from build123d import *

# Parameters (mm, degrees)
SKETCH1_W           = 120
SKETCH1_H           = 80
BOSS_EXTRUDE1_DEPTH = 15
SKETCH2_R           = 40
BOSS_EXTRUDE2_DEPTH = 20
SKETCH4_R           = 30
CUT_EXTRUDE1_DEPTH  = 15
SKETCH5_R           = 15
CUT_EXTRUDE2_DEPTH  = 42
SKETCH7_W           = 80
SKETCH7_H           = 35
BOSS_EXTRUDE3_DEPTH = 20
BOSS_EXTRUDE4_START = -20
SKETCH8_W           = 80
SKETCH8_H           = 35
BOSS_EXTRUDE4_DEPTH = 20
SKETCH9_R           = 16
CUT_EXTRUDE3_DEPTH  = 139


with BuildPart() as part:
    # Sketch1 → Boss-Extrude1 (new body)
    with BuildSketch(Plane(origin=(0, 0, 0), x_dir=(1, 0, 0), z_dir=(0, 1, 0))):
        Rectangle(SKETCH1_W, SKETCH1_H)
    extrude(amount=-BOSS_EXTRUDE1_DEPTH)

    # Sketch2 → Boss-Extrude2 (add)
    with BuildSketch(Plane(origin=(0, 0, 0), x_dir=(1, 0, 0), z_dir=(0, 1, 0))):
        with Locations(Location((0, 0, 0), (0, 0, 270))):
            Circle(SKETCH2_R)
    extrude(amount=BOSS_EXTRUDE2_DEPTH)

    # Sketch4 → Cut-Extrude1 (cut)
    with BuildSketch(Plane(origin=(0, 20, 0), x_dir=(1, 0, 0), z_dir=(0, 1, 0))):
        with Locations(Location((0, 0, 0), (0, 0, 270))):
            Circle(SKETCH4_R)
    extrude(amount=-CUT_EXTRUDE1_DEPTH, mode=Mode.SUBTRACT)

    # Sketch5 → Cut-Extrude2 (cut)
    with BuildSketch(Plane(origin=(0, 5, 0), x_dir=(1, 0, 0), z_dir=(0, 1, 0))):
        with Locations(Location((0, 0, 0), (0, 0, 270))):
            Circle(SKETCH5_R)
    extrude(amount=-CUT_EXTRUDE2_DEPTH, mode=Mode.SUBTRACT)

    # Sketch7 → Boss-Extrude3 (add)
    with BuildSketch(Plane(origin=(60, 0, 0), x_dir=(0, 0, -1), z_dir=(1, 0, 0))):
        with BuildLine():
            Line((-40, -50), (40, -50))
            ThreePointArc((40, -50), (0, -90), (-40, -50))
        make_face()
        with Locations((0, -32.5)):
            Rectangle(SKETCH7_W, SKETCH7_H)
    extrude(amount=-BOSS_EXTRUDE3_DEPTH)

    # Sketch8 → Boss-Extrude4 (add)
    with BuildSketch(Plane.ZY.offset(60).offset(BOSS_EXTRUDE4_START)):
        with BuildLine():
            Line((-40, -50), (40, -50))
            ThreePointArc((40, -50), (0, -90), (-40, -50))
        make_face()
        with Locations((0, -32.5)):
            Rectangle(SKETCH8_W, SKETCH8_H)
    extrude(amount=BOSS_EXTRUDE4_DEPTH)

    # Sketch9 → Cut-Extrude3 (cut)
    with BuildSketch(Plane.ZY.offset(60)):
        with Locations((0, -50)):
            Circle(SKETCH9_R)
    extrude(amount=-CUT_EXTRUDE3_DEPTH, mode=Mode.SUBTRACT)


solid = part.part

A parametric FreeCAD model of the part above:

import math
import FreeCAD as App
import Part
import Sketcher
from FreeCAD import Vector
Q = App.Units.Quantity

doc = App.newDocument("Part")
body = doc.addObject("PartDesign::Body", "Body")

# Sketch on XZ plane
sketch1 = body.newObject("Sketcher::SketchObject", "Sketch")
sketch1.AttachmentSupport = (doc.getObject("XZ_Plane"), [""])
sketch1.MapMode = "FlatFace"
sketch1.addGeometry(Part.LineSegment(Vector(-60, -40, 0), Vector(-60, 40, 0)), False)
sketch1.addGeometry(Part.LineSegment(Vector(-60, 40, 0), Vector(60, 40, 0)), False)
sketch1.addGeometry(Part.LineSegment(Vector(60, 40, 0), Vector(60, -40, 0)), False)
sketch1.addGeometry(Part.LineSegment(Vector(60, -40, 0), Vector(-60, -40, 0)), False)
sketch1.addConstraint(Sketcher.Constraint("Coincident", 0, 2, 1, 1))
sketch1.addConstraint(Sketcher.Constraint("Coincident", 1, 2, 2, 1))
sketch1.addConstraint(Sketcher.Constraint("Coincident", 2, 2, 3, 1))
sketch1.addConstraint(Sketcher.Constraint("Coincident", 3, 2, 0, 1))
sketch1.addConstraint(Sketcher.Constraint("Vertical", 0))
sketch1.addConstraint(Sketcher.Constraint("Horizontal", 1))
sketch1.addConstraint(Sketcher.Constraint("Vertical", 2))
sketch1.addConstraint(Sketcher.Constraint("Horizontal", 3))
sketch1.addConstraint(Sketcher.Constraint("Symmetric", 0, 2, 2, 2, -1, 1))
sketch1.addConstraint(Sketcher.Constraint("DistanceX", 1, 1, 1, 2, Q("120 mm")))
sketch1.addConstraint(Sketcher.Constraint("DistanceY", 0, 1, 0, 2, Q("80 mm")))
pad1 = body.newObject("PartDesign::Pad", "Pad")
pad1.Profile = sketch1
pad1.Length = 15

# Sketch on XZ plane
sketch2 = body.newObject("Sketcher::SketchObject", "Sketch001")
sketch2.AttachmentSupport = (doc.getObject("XZ_Plane"), [""])
sketch2.MapMode = "FlatFace"
sketch2.addGeometry(Part.Circle(Vector(0, 0, 0), Vector(0, 0, 1), 40), False)
sketch2.addConstraint(Sketcher.Constraint("Coincident", 0, 3, -1, 1))
sketch2.addConstraint(Sketcher.Constraint("Diameter", 0, Q("80 mm")))
pad2 = body.newObject("PartDesign::Pad", "Pad001")
pad2.Profile = sketch2
pad2.Length = 20
pad2.Reversed = True

# Sketch on XZ plane
sketch3 = body.newObject("Sketcher::SketchObject", "Sketch002")
sketch3.AttachmentSupport = (doc.getObject("XZ_Plane"), [""])
sketch3.MapMode = "FlatFace"
sketch3.AttachmentOffset = App.Placement(Vector(0, 0, -20), App.Rotation())
sketch3.addGeometry(Part.Circle(Vector(0, 0, 0), Vector(0, 0, 1), 30), False)
sketch3.addConstraint(Sketcher.Constraint("Coincident", 0, 3, -1, 1))
sketch3.addConstraint(Sketcher.Constraint("Diameter", 0, Q("60 mm")))
pocket1 = body.newObject("PartDesign::Pocket", "Pocket")
pocket1.Profile = sketch3
pocket1.Length = 15
pocket1.Reversed = True

# Sketch on XZ plane
sketch4 = body.newObject("Sketcher::SketchObject", "Sketch003")
sketch4.AttachmentSupport = (doc.getObject("XZ_Plane"), [""])
sketch4.MapMode = "FlatFace"
sketch4.AttachmentOffset = App.Placement(Vector(0, 0, -5), App.Rotation())
sketch4.addGeometry(Part.Circle(Vector(0, 0, 0), Vector(0, 0, 1), 15), False)
sketch4.addConstraint(Sketcher.Constraint("Coincident", 0, 3, -1, 1))
sketch4.addConstraint(Sketcher.Constraint("Diameter", 0, Q("30 mm")))
pocket2 = body.newObject("PartDesign::Pocket", "Pocket001")
pocket2.Profile = sketch4
pocket2.Length = 42
pocket2.Reversed = True

# Sketch on YZ plane
sketch5 = body.newObject("Sketcher::SketchObject", "Sketch004")
sketch5.AttachmentSupport = (doc.getObject("YZ_Plane"), [""])
sketch5.MapMode = "FlatFace"
sketch5.AttachmentOffset = App.Placement(Vector(0, 0, 60), App.Rotation())
sketch5.addGeometry(Part.ArcOfCircle(Part.Circle(Vector(-50, 0, 0), Vector(0, 0, 1), 40), math.radians(90), math.radians(270)), False)
sketch5.addGeometry(Part.LineSegment(Vector(-50, -40, 0), Vector(-15, -40, 0)), False)
sketch5.addGeometry(Part.LineSegment(Vector(-15, -40, 0), Vector(-15, 40, 0)), False)
sketch5.addGeometry(Part.LineSegment(Vector(-15, 40, 0), Vector(-50, 40, 0)), False)
sketch5.addConstraint(Sketcher.Constraint("Tangent", 0, 2, 1, 1))
sketch5.addConstraint(Sketcher.Constraint("Coincident", 1, 2, 2, 1))
sketch5.addConstraint(Sketcher.Constraint("Coincident", 2, 2, 3, 1))
sketch5.addConstraint(Sketcher.Constraint("Tangent", 3, 2, 0, 1))
sketch5.addConstraint(Sketcher.Constraint("Horizontal", 1))
sketch5.addConstraint(Sketcher.Constraint("Vertical", 2))
sketch5.addConstraint(Sketcher.Constraint("Horizontal", 3))
sketch5.addConstraint(Sketcher.Constraint("PointOnObject", 0, 3, -1))
sketch5.addConstraint(Sketcher.Constraint("Radius", 0, Q("40 mm")))
sketch5.addConstraint(Sketcher.Constraint("DistanceX", 1, 1, 1, 2, Q("35 mm")))
sketch5.addConstraint(Sketcher.Constraint("DistanceX", 0, 3, -1, 1, Q("50 mm")))
pad3 = body.newObject("PartDesign::Pad", "Pad002")
pad3.Profile = sketch5
pad3.Length = 20
pad3.Reversed = True

# Sketch on YZ plane
sketch6 = body.newObject("Sketcher::SketchObject", "Sketch005")
sketch6.AttachmentSupport = (doc.getObject("YZ_Plane"), [""])
sketch6.MapMode = "FlatFace"
sketch6.AttachmentOffset = App.Placement(Vector(0, 0, -40), App.Rotation())
sketch6.addGeometry(Part.ArcOfCircle(Part.Circle(Vector(-50, 0, 0), Vector(0, 0, 1), 40), math.radians(90), math.radians(270)), False)
sketch6.addGeometry(Part.LineSegment(Vector(-50, 40, 0), Vector(-15, 40, 0)), False)
sketch6.addGeometry(Part.LineSegment(Vector(-15, 40, 0), Vector(-15, -40, 0)), False)
sketch6.addGeometry(Part.LineSegment(Vector(-15, -40, 0), Vector(-50, -40, 0)), False)
sketch6.addConstraint(Sketcher.Constraint("Tangent", 0, 1, 1, 1))
sketch6.addConstraint(Sketcher.Constraint("Coincident", 1, 2, 2, 1))
sketch6.addConstraint(Sketcher.Constraint("Coincident", 2, 2, 3, 1))
sketch6.addConstraint(Sketcher.Constraint("Tangent", 3, 2, 0, 2))
sketch6.addConstraint(Sketcher.Constraint("Horizontal", 1))
sketch6.addConstraint(Sketcher.Constraint("Vertical", 2))
sketch6.addConstraint(Sketcher.Constraint("Horizontal", 3))
sketch6.addConstraint(Sketcher.Constraint("PointOnObject", 0, 3, -1))
sketch6.addConstraint(Sketcher.Constraint("Radius", 0, Q("40 mm")))
sketch6.addConstraint(Sketcher.Constraint("DistanceX", 1, 1, 1, 2, Q("35 mm")))
sketch6.addConstraint(Sketcher.Constraint("DistanceX", 0, 3, -1, 1, Q("50 mm")))
pad4 = body.newObject("PartDesign::Pad", "Pad003")
pad4.Profile = sketch6
pad4.Length = 20
pad4.Reversed = True

# Sketch on YZ plane
sketch7 = body.newObject("Sketcher::SketchObject", "Sketch006")
sketch7.AttachmentSupport = (doc.getObject("YZ_Plane"), [""])
sketch7.MapMode = "FlatFace"
sketch7.AttachmentOffset = App.Placement(Vector(0, 0, -60), App.Rotation())
sketch7.addGeometry(Part.Circle(Vector(-50, 0, 0), Vector(0, 0, 1), 16), False)
sketch7.addConstraint(Sketcher.Constraint("PointOnObject", 0, 3, -1))
sketch7.addConstraint(Sketcher.Constraint("Diameter", 0, Q("32 mm")))
sketch7.addConstraint(Sketcher.Constraint("DistanceX", 0, 3, -1, 1, Q("50 mm")))
pocket3 = body.newObject("PartDesign::Pocket", "Pocket002")
pocket3.Profile = sketch7
pocket3.Length = 139
pocket3.Reversed = True

doc.recompute()
